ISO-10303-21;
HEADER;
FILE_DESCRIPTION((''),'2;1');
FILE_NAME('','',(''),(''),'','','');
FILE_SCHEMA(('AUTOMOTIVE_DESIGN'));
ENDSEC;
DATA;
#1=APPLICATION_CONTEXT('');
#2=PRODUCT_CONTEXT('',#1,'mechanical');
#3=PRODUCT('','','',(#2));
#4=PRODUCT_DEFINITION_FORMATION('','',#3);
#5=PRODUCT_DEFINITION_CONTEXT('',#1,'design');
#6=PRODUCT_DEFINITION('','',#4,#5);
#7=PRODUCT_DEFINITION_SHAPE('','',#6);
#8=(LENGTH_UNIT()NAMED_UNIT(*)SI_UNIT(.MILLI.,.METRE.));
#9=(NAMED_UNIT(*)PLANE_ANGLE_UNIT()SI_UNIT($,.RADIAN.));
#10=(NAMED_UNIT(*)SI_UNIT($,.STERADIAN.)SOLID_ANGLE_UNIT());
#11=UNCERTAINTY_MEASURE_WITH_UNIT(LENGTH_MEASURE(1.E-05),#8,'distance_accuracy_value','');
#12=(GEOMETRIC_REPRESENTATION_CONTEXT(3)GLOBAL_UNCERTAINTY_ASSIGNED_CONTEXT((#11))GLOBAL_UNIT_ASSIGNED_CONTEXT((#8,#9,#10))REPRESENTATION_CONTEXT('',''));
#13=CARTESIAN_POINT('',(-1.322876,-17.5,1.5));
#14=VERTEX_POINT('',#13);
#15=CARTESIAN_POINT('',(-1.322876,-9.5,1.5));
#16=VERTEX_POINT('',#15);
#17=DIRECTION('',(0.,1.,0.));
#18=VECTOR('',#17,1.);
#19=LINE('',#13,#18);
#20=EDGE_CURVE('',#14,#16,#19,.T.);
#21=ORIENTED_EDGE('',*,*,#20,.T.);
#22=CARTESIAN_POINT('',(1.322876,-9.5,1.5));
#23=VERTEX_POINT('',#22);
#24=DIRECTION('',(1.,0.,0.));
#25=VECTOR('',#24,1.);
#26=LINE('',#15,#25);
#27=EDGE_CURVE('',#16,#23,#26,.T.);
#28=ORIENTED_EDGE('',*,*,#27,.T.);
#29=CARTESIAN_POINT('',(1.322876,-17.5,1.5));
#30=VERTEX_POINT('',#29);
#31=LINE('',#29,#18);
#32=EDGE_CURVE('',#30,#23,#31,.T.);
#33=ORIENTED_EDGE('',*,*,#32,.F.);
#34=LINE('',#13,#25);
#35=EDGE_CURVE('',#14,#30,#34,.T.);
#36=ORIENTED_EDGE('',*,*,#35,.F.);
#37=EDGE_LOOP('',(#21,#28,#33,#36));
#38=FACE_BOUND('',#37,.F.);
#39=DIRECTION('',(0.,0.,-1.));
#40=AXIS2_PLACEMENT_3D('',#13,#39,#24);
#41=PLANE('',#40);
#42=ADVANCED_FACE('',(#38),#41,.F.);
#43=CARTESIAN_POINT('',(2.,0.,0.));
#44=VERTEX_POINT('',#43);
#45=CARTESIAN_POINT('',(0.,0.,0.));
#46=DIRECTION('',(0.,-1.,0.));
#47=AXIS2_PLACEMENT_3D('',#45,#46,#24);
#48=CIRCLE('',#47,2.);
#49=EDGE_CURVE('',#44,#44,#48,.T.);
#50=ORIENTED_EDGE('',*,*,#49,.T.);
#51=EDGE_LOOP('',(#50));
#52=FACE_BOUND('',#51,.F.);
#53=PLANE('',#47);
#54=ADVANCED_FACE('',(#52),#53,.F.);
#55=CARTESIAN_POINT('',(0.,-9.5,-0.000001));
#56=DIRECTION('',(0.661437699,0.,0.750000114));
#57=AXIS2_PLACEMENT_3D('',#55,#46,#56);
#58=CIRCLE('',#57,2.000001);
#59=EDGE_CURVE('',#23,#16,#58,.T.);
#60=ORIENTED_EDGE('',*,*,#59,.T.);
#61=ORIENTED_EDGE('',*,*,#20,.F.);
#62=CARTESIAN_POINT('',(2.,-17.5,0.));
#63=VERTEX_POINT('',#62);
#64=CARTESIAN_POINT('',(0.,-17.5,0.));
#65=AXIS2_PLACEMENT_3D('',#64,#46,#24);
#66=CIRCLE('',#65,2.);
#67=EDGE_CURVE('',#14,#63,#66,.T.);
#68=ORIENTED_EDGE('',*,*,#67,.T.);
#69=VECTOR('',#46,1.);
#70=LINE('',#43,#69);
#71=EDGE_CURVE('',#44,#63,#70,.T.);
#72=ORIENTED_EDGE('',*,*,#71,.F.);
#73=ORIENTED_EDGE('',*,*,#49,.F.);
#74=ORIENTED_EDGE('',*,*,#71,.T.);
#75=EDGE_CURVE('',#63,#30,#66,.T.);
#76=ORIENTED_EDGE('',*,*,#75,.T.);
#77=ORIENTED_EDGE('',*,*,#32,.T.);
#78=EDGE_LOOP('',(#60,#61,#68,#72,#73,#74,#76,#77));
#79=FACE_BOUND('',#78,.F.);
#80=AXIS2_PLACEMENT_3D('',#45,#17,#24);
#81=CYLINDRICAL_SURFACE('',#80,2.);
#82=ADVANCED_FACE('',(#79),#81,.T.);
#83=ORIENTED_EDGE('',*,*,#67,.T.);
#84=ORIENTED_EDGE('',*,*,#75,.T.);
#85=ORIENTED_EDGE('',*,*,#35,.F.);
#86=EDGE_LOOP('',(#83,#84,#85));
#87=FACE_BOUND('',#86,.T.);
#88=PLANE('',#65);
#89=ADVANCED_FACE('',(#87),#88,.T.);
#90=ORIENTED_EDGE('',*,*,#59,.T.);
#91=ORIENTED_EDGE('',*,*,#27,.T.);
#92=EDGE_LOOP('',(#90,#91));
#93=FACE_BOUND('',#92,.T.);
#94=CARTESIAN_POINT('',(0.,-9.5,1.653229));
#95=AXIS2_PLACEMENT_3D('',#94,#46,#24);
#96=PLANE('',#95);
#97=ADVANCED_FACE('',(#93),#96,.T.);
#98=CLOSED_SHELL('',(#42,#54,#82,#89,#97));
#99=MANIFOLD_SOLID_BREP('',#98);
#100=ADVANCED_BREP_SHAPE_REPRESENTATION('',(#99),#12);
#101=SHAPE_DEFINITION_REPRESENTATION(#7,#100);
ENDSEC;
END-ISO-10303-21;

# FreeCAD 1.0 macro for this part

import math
import FreeCAD as App
import Part
import Sketcher

doc = App.newDocument("Part")
body = doc.addObject("PartDesign::Body", "Body")

sketch1 = body.newObject("Sketcher::SketchObject", "Sketch")
sketch1.AttachmentSupport = (doc.getObject("XZ_Plane"), [""])
sketch1.MapMode = "FlatFace"
sketch1.addGeometry(Part.Circle(App.Vector(0, 0, 0), App.Vector(0, 0, 1), 2), False)
sketch1.addConstraint([
    Sketcher.Constraint("Coincident", 0, 3, -1, 1),
    Sketcher.Constraint("Diameter", 0, 4.0),
])
pad1 = body.newObject("PartDesign::Pad", "Pad")
pad1.Profile = sketch1
pad1.Length = 17.5

sketch2 = body.newObject("Sketcher::SketchObject", "Sketch001")
sketch2.AttachmentSupport = (doc.getObject("XZ_Plane"), [""])
sketch2.MapMode = "FlatFace"
sketch2.AttachmentOffset = App.Placement(App.Vector(0, 0, 17.5), App.Rotation())
sketch2.addGeometry([
    Part.ArcOfCircle(Part.Circle(App.Vector(0, 0, 0), App.Vector(0, 0, 1), 2), math.radians(49), math.radians(131)),
    Part.LineSegment(App.Vector(-1.3, 1.5, 0), App.Vector(1.3, 1.5, 0)),
], False)
sketch2.addConstraint([
    Sketcher.Constraint("Coincident", 0, 1, 1, 2),
    Sketcher.Constraint("Coincident", 1, 1, 0, 2),
    Sketcher.Constraint("Horizontal", 1),
    Sketcher.Constraint("Coincident", 0, 3, -1, 1),
    Sketcher.Constraint("Radius", 0, 2.000001),
    Sketcher.Constraint("DistanceY", -1, 1, 0, 1, 1.5),
])
pocket1 = body.newObject("PartDesign::Pocket", "Pocket")
pocket1.Profile = sketch2
pocket1.Length = 8

doc.recompute()
